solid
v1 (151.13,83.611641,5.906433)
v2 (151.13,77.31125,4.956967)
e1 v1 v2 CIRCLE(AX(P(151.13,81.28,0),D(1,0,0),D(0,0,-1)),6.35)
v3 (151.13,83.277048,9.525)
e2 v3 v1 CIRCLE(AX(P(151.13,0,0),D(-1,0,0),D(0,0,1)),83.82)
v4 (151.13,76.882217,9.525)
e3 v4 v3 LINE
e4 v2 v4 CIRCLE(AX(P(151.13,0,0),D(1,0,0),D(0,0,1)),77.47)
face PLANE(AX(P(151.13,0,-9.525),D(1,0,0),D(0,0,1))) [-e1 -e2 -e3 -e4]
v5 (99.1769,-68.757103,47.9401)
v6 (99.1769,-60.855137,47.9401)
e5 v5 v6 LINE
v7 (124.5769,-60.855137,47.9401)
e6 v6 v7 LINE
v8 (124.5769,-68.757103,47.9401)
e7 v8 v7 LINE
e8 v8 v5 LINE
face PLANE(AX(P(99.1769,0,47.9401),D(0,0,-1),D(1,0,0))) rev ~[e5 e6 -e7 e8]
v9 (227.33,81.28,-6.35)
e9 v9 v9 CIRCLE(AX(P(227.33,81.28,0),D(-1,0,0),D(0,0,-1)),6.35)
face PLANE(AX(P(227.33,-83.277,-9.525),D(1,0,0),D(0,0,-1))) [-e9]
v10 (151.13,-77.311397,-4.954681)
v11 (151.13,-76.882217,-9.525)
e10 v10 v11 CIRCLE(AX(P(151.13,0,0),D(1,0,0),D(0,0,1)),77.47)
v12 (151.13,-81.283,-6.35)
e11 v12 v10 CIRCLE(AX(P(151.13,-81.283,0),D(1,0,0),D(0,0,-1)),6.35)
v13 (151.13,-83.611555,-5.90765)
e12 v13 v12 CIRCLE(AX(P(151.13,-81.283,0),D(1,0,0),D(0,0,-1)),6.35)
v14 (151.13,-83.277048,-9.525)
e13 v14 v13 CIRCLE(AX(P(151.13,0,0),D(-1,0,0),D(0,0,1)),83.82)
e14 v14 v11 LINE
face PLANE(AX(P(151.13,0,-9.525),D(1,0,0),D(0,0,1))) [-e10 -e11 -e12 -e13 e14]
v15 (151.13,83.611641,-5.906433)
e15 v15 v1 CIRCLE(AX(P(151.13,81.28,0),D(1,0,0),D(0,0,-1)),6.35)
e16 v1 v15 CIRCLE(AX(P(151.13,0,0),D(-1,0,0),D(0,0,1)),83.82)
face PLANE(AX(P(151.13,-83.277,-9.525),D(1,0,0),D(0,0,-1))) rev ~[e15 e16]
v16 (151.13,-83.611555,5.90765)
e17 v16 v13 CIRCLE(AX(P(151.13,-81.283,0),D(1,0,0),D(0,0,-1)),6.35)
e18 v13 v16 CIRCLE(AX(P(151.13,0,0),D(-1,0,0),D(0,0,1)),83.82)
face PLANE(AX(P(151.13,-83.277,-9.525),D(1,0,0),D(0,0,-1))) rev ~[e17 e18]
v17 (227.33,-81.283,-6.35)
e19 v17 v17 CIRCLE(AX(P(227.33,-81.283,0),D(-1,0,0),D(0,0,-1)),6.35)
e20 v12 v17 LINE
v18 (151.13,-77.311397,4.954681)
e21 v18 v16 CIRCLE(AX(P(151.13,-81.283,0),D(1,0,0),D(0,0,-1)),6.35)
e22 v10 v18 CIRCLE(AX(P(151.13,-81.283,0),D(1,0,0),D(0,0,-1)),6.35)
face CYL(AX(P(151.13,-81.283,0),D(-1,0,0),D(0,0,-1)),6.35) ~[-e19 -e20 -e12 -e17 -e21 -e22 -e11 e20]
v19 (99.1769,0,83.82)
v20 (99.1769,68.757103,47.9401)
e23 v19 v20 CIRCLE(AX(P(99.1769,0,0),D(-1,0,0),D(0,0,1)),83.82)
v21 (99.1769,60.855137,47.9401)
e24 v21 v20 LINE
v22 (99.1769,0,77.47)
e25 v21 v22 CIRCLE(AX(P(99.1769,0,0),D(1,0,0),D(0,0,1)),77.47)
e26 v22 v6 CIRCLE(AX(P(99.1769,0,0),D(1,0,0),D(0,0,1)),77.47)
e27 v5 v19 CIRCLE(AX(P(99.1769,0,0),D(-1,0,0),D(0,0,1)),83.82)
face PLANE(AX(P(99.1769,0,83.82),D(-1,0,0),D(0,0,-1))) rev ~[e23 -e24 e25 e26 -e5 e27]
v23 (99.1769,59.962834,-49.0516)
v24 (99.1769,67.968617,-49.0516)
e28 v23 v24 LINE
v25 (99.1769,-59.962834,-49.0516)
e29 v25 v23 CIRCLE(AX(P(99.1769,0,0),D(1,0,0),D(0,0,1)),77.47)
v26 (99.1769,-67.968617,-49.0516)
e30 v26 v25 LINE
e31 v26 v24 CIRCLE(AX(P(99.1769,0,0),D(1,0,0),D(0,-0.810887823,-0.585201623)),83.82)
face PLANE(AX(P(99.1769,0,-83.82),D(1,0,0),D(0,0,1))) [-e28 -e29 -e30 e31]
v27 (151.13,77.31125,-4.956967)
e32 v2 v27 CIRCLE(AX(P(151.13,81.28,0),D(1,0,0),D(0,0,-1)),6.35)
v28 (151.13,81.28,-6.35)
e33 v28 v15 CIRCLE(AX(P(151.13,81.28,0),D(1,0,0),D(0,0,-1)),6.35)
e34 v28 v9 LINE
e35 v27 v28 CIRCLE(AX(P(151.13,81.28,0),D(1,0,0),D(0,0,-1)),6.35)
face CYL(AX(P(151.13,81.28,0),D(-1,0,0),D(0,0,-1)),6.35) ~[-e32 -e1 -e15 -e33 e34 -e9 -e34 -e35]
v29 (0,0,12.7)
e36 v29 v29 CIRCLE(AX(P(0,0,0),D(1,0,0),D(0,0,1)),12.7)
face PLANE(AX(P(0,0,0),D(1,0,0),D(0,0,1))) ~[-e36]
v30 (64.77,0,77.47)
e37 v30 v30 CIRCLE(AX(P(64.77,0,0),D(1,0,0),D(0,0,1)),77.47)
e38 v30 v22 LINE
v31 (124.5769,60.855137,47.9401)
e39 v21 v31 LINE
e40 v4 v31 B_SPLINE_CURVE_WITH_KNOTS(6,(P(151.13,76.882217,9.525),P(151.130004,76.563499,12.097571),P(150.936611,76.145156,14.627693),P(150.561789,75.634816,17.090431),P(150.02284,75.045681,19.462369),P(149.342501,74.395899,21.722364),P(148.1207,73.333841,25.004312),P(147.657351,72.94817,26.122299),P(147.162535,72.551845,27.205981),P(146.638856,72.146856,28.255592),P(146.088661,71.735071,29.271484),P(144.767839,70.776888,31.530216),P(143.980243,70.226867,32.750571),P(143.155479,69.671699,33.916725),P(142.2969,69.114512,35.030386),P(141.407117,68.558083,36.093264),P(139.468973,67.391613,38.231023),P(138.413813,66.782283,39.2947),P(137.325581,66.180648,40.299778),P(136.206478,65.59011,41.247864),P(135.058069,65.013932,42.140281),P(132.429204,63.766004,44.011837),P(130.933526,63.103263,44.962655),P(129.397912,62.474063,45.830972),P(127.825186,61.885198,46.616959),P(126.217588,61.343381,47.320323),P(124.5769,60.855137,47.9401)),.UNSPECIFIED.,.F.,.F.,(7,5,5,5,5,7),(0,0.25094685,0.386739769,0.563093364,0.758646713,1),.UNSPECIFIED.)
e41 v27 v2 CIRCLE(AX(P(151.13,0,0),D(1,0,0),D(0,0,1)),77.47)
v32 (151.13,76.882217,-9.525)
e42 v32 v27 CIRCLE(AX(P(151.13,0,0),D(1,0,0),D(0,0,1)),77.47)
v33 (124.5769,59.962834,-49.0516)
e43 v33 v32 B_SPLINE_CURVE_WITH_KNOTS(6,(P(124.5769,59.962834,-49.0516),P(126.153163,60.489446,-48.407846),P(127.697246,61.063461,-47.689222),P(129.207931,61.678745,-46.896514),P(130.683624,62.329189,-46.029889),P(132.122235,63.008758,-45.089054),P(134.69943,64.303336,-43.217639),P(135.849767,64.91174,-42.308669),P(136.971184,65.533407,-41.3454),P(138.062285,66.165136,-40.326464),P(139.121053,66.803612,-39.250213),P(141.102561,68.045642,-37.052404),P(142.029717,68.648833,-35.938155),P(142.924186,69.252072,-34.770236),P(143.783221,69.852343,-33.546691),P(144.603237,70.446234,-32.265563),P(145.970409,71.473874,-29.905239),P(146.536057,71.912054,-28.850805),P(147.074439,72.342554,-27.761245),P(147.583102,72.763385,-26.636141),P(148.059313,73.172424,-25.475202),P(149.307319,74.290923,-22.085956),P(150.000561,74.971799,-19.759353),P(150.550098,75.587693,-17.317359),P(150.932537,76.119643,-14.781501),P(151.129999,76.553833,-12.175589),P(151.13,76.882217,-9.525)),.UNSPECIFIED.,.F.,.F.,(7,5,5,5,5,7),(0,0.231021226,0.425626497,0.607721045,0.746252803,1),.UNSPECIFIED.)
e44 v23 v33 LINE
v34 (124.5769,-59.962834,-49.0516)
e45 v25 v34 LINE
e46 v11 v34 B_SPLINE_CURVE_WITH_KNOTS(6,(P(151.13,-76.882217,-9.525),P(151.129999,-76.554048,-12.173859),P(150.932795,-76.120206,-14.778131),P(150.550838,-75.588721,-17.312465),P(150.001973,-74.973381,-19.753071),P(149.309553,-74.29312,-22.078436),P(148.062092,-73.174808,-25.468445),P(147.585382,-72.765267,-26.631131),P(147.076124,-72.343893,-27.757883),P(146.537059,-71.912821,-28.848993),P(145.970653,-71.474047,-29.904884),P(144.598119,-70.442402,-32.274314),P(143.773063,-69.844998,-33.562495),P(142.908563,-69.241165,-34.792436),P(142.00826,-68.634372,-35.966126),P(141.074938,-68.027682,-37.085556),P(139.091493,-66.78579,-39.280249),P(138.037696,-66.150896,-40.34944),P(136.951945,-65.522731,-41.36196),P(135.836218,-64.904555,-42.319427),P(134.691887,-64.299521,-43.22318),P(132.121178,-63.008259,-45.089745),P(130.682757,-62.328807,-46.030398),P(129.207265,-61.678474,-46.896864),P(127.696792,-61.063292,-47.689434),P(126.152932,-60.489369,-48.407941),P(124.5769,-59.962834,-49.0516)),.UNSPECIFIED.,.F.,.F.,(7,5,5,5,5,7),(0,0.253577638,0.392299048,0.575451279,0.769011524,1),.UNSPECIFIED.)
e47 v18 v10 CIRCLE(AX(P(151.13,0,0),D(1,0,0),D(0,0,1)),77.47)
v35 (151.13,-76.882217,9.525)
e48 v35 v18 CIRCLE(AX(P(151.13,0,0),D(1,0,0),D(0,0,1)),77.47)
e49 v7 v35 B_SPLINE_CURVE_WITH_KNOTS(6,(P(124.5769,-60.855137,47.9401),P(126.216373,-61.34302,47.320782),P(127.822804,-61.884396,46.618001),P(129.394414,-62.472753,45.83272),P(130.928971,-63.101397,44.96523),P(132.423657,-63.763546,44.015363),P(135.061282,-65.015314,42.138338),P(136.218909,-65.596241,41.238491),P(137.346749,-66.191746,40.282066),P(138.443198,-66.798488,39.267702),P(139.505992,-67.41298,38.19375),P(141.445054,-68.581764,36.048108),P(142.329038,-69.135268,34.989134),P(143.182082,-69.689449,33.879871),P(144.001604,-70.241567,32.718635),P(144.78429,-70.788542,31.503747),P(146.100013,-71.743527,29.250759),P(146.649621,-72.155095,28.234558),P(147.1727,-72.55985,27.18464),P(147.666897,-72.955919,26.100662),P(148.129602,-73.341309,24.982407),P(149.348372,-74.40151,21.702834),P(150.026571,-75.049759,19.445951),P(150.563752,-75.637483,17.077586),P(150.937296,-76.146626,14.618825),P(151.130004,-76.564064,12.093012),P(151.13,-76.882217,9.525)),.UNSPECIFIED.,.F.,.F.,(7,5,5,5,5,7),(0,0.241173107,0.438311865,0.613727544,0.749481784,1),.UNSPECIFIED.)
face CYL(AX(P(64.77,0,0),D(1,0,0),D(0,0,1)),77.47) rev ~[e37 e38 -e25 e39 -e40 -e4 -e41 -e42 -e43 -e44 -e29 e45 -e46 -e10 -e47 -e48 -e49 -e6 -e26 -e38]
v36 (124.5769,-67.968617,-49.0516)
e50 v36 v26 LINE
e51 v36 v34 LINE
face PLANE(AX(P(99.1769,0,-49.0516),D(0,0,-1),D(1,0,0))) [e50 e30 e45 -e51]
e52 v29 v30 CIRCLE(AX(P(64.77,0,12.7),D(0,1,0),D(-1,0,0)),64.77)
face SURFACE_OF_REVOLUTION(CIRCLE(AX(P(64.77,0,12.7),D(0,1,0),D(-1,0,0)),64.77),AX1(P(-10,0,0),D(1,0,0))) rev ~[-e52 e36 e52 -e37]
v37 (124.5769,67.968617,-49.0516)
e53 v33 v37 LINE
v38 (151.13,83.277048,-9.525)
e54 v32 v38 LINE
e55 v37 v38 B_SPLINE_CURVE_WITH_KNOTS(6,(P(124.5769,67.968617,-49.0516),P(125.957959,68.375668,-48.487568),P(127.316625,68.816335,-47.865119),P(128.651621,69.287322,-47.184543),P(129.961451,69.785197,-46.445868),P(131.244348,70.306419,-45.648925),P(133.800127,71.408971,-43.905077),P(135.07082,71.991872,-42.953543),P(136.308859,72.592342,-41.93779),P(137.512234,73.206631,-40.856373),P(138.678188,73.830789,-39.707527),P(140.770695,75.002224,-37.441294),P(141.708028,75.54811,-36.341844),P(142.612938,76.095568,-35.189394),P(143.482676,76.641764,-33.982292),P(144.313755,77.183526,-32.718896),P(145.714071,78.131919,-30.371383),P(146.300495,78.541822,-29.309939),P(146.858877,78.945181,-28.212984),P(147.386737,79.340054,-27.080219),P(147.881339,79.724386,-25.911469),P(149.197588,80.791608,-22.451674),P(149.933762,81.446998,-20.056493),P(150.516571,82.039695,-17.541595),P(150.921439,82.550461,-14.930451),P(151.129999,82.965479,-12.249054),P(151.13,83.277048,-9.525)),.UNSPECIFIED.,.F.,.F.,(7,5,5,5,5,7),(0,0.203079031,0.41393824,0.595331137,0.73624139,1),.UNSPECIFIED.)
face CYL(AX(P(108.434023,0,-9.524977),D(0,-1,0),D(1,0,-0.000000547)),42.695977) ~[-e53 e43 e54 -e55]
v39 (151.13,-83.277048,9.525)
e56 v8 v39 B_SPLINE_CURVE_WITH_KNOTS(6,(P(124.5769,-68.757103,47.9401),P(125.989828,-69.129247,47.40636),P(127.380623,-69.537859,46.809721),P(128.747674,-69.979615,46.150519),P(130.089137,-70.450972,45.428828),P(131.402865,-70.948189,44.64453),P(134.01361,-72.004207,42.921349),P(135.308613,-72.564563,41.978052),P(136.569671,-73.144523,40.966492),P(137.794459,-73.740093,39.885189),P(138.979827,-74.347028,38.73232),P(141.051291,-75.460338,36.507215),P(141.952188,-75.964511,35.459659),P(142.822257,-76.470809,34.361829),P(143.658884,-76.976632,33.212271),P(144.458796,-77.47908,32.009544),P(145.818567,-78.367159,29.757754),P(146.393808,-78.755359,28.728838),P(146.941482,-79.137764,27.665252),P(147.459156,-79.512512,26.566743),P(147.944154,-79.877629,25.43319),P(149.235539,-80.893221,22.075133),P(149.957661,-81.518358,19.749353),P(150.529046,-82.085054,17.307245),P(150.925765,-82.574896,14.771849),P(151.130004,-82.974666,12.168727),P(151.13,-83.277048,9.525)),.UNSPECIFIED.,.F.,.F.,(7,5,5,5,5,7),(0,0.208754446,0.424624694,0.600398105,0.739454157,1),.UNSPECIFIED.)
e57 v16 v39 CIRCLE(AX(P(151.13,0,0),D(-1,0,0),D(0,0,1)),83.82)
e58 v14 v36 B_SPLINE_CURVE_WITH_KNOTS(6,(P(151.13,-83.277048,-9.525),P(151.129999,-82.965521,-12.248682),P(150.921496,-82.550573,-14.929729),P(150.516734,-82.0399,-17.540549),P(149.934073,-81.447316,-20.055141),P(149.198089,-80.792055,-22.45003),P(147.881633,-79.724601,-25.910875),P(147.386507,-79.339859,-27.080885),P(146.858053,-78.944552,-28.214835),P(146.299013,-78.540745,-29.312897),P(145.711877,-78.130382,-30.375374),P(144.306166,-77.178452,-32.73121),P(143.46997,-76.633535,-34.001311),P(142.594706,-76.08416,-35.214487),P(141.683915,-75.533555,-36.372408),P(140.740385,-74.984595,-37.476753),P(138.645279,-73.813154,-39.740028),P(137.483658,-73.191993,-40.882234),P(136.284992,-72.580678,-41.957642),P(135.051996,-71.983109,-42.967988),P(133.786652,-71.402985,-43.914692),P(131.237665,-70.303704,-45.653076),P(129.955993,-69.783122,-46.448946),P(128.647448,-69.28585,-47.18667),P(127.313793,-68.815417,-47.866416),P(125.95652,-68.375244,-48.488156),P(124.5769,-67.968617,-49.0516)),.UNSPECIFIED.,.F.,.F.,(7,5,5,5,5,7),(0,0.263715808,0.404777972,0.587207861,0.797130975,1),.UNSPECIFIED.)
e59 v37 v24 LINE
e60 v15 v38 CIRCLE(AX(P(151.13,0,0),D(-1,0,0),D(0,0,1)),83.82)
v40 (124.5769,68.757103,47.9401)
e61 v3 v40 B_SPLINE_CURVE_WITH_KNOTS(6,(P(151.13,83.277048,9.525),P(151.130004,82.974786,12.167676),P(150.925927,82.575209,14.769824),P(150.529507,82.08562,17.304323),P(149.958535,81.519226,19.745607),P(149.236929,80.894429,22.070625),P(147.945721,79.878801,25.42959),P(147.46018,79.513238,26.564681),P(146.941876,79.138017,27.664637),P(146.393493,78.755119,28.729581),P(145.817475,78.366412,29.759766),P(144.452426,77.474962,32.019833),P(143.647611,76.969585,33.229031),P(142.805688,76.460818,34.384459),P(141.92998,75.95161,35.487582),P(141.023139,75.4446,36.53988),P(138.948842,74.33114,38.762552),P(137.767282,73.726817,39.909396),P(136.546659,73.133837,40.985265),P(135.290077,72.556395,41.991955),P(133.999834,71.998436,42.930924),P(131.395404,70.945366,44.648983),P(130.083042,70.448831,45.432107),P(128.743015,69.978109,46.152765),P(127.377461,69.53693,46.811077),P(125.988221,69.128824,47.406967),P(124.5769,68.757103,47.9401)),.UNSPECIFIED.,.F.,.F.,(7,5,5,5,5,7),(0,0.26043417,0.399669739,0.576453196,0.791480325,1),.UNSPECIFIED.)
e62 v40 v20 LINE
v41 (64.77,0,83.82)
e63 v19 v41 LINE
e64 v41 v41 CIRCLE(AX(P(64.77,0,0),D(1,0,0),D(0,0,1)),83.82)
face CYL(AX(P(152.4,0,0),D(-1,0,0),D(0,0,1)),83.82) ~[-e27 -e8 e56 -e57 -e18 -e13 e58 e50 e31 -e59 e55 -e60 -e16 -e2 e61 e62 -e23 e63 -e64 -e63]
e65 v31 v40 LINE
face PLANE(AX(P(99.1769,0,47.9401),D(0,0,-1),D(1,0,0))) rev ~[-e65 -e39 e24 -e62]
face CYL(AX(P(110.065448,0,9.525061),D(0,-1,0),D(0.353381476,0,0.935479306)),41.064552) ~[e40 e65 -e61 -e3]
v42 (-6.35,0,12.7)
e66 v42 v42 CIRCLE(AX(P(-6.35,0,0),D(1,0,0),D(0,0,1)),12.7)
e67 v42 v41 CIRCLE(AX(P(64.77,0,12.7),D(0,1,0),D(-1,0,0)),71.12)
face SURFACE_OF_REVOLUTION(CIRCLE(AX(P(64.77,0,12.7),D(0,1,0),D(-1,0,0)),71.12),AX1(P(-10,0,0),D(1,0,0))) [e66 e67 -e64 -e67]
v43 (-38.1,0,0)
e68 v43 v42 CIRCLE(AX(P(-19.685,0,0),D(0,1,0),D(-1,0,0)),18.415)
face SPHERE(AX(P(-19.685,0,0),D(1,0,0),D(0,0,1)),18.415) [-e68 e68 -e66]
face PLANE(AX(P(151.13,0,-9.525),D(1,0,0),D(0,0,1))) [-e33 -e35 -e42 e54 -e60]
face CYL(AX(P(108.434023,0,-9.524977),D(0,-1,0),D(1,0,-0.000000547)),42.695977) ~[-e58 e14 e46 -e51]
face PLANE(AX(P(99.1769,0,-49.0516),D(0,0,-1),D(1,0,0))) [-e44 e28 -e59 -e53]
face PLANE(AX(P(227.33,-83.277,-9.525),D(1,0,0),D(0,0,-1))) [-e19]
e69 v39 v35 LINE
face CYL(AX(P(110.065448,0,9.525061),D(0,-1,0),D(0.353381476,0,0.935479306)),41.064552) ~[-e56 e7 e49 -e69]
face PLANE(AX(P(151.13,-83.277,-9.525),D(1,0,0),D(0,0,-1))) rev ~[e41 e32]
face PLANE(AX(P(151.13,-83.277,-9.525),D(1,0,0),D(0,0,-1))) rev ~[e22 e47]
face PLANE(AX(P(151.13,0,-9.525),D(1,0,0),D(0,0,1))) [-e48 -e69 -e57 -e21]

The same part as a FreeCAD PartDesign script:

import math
import FreeCAD as App
import Part
import Sketcher
from FreeCAD import Vector
Q = App.Units.Quantity

doc = App.newDocument("Part")
params = doc.addObject("Spreadsheet::Sheet", "Params")
for row, (alias, value) in enumerate([
    ("sketch1_width", "1.5 in"),
    ("sketch1_height", "0.5 in"),
    ("sketch1_height2", "0.25 in"),
    ("sketch1_radius", "2.8 in"),
    ("revolution_angle", "360 deg"),
    ("sketch2_width", "1 in"),
    ("sketch2_height", "0.75 in"),
    ("sketch2_height2", "6.6 in"),
    ("sketch3_diameter", "0.5 in"),
    ("pad1_length", "3 in"),
], start=1):
    params.set(f"A{row}", alias)
    params.set(f"B{row}", "=" + value)
    params.setAlias(f"B{row}", alias)

body = doc.addObject("PartDesign::Body", "Body")

# Sketch on XZ plane
sketch1 = body.newObject("Sketcher::SketchObject", "Sketch")
sketch1.AttachmentSupport = (doc.getObject("XZ_Plane"), [""])
sketch1.MapMode = "FlatFace"
sketch1.addGeometry([
    Part.LineSegment(Vector(0, 12.7, 0), Vector(0, 0, 0)),  # 0
    Part.LineSegment(Vector(0, 0, 0), Vector(-38.1, 0, 0)),  # 1
    Part.ArcOfCircle(Part.Circle(Vector(-19.685, 0, 0), Vector(0, 0, 1), 18.415), math.radians(43.602819), math.radians(180)),  # 2
    Part.ArcOfCircle(Part.Circle(Vector(64.77, 12.7, 0), Vector(0, 0, 1), 71.12), math.radians(90), math.radians(180)),  # 3
    Part.LineSegment(Vector(64.77, 83.82, 0), Vector(152.4, 83.82, 0)),  # 4
    Part.LineSegment(Vector(152.4, 83.82, 0), Vector(152.4, 77.47, 0)),  # 5
    Part.LineSegment(Vector(152.4, 77.47, 0), Vector(64.77, 77.47, 0)),  # 6
    Part.ArcOfCircle(Part.Circle(Vector(64.77, 12.7, 0), Vector(0, 0, 1), 64.77), math.radians(90), math.radians(180)),  # 7
], False)
sketch1.addConstraint([
    Sketcher.Constraint("Coincident", 0, 2, 1, 1),
    Sketcher.Constraint("Coincident", 1, 2, 2, 2),
    Sketcher.Constraint("Coincident", 2, 1, 3, 2),
    Sketcher.Constraint("Tangent", 3, 1, 4, 1),
    Sketcher.Constraint("Coincident", 4, 2, 5, 1),
    Sketcher.Constraint("Coincident", 5, 2, 6, 1),
    Sketcher.Constraint("Tangent", 6, 2, 7, 1),
    Sketcher.Constraint("Tangent", 7, 2, 0, 1),
    Sketcher.Constraint("Vertical", 0),
    Sketcher.Constraint("Horizontal", 1),
    Sketcher.Constraint("Horizontal", 4),
    Sketcher.Constraint("Vertical", 5),
    Sketcher.Constraint("Horizontal", 6),
    Sketcher.Constraint("Coincident", 0, 2, -1, 1),
    Sketcher.Constraint("Coincident", 7, 3, 3, 3),
    Sketcher.Constraint("PointOnObject", 2, 3, -1),
    Sketcher.Constraint("Horizontal", 7, 3, 2, 1),
    Sketcher.Constraint("DistanceX", 1, 2, 1, 1, Q("1.5 in")),
    Sketcher.Constraint("DistanceY", 0, 2, 0, 1, Q("0.5 in")),
    Sketcher.Constraint("DistanceX", -1, 1, 4, 2, Q("6 in")),
    Sketcher.Constraint("DistanceY", 5, 2, 5, 1, Q("0.25 in")),
    Sketcher.Constraint("Radius", 3, Q("2.8 in")),
])
sketch1.setExpression("Constraints[17]", "Params.sketch1_width")
sketch1.setExpression("Constraints[18]", "Params.sketch1_height")
sketch1.setExpression("Constraints[20]", "Params.sketch1_height2")
sketch1.setExpression("Constraints[21]", "Params.sketch1_radius")
revolution = body.newObject("PartDesign::Revolution", "Revolution")
revolution.Profile = sketch1
revolution.ReferenceAxis = (sketch1, ["H_Axis"])
revolution.setExpression("Angle", "Params.revolution_angle")

# Sketch on XZ plane
sketch2 = body.newObject("Sketcher::SketchObject", "Sketch001")
sketch2.AttachmentSupport = (doc.getObject("XZ_Plane"), [""])
sketch2.MapMode = "FlatFace"
sketch2.addGeometry([
    Part.LineSegment(Vector(152.4, -83.82, 0), Vector(99.1769, -83.82, 0)),  # 0
    Part.LineSegment(Vector(99.1769, -83.82, 0), Vector(99.1769, -49.0516, 0)),  # 1
    Part.LineSegment(Vector(99.1769, -49.0516, 0), Vector(124.5769, -49.0516, 0)),  # 2
    Part.ArcOfCircle(Part.Circle(Vector(108.4341, -9.525, 0), Vector(0, 0, 1), 42.6959), math.radians(-67.784726), math.radians(0)),  # 3
    Part.LineSegment(Vector(151.13, -9.525, 0), Vector(151.13, 9.525, 0)),  # 4
    Part.ArcOfCircle(Part.Circle(Vector(110.0654, 9.525, 0), Vector(0, 0, 1), 41.064626), math.radians(0), math.radians(69.305686)),  # 5
    Part.LineSegment(Vector(124.5769, 47.9401, 0), Vector(99.1769, 47.9401, 0)),  # 6
    Part.LineSegment(Vector(99.1769, 47.9401, 0), Vector(99.1769, 83.82, 0)),  # 7
    Part.LineSegment(Vector(99.1769, 83.82, 0), Vector(152.4, 83.82, 0)),  # 8
    Part.LineSegment(Vector(152.4, 83.82, 0), Vector(152.4, -83.82, 0)),  # 9
], False)
sketch2.addConstraint([
    Sketcher.Constraint("Coincident", 0, 2, 1, 1),
    Sketcher.Constraint("Coincident", 1, 2, 2, 1),
    Sketcher.Constraint("Coincident", 2, 2, 3, 1),
    Sketcher.Constraint("Tangent", 3, 2, 4, 1),
    Sketcher.Constraint("Tangent", 4, 2, 5, 1),
    Sketcher.Constraint("Coincident", 5, 2, 6, 1),
    Sketcher.Constraint("Coincident", 6, 2, 7, 1),
    Sketcher.Constraint("Coincident", 7, 2, 8, 1),
    Sketcher.Constraint("Coincident", 8, 2, 9, 1),
    Sketcher.Constraint("Coincident", 9, 2, 0, 1),
    Sketcher.Constraint("Horizontal", 0),
    Sketcher.Constraint("Vertical", 1),
    Sketcher.Constraint("Horizontal", 2),
    Sketcher.Constraint("Vertical", 4),
    Sketcher.Constraint("Horizontal", 6),
    Sketcher.Constraint("Vertical", 7),
    Sketcher.Constraint("Horizontal", 8),
    Sketcher.Constraint("Vertical", 9),
    Sketcher.Constraint("Symmetric", 0, 2, 7, 2, -1),
    Sketcher.Constraint("Vertical", 2, 2, 5, 2),
    Sketcher.Constraint("DistanceX", 2, 1, 2, 2, Q("1 in")),
    Sketcher.Constraint("DistanceY", 4, 1, 4, 2, Q("0.75 in")),
    Sketcher.Constraint("DistanceX", 4, 2, 8, 2, Q("0.05 in")),
    Sketcher.Constraint("DistanceX", 0, 2, 0, 1, Q("2.0954 in")),
    Sketcher.Constraint("DistanceY", 7, 1, 7, 2, Q("1.4126 in")),
    Sketcher.Constraint("DistanceY", 9, 2, 9, 1, Q("6.6 in")),
    Sketcher.Constraint("DistanceX", -1, 1, 8, 2, Q("6 in")),
    Sketcher.Constraint("DistanceY", 1, 1, 1, 2, 34.7684),
    Sketcher.Constraint("Radius", 3, 42.696),
])
sketch2.setExpression("Constraints[20]", "Params.sketch2_width")
sketch2.setExpression("Constraints[21]", "Params.sketch2_height")
sketch2.setExpression("Constraints[25]", "Params.sketch2_height2")
pocket1 = body.newObject("PartDesign::Pocket", "Pocket")
pocket1.Profile = sketch2
pocket1.Type = "ThroughAll"
pocket1.Midplane = True

# Sketch on YZ plane
sketch3 = body.newObject("Sketcher::SketchObject", "Sketch002")
sketch3.AttachmentSupport = (doc.getObject("YZ_Plane"), [""])
sketch3.MapMode = "FlatFace"
sketch3.AttachmentOffset = App.Placement(Vector(0, 0, 5.95 * 25.4), App.Rotation())
sketch3.addGeometry([
    Part.Circle(Vector(-81.283, 0, 0), Vector(0, 0, 1), 6.35),
    Part.Circle(Vector(81.28, 0, 0), Vector(0, 0, 1), 6.35),
], False)
sketch3.addConstraint([
    Sketcher.Constraint("Equal", 0, 1),
    Sketcher.Constraint("PointOnObject", 0, 3, -1),
    Sketcher.Constraint("PointOnObject", 1, 3, -1),
    Sketcher.Constraint("Diameter", 0, Q("0.5 in")),
    Sketcher.Constraint("DistanceX", -1, 1, 1, 3, Q("3.2 in")),
    Sketcher.Constraint("DistanceX", 0, 3, -1, 1, 81.283),
])
sketch3.setExpression("Constraints[3]", "Params.sketch3_diameter")
pad1 = body.newObject("PartDesign::Pad", "Pad")
pad1.Profile = sketch3
pad1.setExpression("Length", "Params.pad1_length")

doc.recompute()
